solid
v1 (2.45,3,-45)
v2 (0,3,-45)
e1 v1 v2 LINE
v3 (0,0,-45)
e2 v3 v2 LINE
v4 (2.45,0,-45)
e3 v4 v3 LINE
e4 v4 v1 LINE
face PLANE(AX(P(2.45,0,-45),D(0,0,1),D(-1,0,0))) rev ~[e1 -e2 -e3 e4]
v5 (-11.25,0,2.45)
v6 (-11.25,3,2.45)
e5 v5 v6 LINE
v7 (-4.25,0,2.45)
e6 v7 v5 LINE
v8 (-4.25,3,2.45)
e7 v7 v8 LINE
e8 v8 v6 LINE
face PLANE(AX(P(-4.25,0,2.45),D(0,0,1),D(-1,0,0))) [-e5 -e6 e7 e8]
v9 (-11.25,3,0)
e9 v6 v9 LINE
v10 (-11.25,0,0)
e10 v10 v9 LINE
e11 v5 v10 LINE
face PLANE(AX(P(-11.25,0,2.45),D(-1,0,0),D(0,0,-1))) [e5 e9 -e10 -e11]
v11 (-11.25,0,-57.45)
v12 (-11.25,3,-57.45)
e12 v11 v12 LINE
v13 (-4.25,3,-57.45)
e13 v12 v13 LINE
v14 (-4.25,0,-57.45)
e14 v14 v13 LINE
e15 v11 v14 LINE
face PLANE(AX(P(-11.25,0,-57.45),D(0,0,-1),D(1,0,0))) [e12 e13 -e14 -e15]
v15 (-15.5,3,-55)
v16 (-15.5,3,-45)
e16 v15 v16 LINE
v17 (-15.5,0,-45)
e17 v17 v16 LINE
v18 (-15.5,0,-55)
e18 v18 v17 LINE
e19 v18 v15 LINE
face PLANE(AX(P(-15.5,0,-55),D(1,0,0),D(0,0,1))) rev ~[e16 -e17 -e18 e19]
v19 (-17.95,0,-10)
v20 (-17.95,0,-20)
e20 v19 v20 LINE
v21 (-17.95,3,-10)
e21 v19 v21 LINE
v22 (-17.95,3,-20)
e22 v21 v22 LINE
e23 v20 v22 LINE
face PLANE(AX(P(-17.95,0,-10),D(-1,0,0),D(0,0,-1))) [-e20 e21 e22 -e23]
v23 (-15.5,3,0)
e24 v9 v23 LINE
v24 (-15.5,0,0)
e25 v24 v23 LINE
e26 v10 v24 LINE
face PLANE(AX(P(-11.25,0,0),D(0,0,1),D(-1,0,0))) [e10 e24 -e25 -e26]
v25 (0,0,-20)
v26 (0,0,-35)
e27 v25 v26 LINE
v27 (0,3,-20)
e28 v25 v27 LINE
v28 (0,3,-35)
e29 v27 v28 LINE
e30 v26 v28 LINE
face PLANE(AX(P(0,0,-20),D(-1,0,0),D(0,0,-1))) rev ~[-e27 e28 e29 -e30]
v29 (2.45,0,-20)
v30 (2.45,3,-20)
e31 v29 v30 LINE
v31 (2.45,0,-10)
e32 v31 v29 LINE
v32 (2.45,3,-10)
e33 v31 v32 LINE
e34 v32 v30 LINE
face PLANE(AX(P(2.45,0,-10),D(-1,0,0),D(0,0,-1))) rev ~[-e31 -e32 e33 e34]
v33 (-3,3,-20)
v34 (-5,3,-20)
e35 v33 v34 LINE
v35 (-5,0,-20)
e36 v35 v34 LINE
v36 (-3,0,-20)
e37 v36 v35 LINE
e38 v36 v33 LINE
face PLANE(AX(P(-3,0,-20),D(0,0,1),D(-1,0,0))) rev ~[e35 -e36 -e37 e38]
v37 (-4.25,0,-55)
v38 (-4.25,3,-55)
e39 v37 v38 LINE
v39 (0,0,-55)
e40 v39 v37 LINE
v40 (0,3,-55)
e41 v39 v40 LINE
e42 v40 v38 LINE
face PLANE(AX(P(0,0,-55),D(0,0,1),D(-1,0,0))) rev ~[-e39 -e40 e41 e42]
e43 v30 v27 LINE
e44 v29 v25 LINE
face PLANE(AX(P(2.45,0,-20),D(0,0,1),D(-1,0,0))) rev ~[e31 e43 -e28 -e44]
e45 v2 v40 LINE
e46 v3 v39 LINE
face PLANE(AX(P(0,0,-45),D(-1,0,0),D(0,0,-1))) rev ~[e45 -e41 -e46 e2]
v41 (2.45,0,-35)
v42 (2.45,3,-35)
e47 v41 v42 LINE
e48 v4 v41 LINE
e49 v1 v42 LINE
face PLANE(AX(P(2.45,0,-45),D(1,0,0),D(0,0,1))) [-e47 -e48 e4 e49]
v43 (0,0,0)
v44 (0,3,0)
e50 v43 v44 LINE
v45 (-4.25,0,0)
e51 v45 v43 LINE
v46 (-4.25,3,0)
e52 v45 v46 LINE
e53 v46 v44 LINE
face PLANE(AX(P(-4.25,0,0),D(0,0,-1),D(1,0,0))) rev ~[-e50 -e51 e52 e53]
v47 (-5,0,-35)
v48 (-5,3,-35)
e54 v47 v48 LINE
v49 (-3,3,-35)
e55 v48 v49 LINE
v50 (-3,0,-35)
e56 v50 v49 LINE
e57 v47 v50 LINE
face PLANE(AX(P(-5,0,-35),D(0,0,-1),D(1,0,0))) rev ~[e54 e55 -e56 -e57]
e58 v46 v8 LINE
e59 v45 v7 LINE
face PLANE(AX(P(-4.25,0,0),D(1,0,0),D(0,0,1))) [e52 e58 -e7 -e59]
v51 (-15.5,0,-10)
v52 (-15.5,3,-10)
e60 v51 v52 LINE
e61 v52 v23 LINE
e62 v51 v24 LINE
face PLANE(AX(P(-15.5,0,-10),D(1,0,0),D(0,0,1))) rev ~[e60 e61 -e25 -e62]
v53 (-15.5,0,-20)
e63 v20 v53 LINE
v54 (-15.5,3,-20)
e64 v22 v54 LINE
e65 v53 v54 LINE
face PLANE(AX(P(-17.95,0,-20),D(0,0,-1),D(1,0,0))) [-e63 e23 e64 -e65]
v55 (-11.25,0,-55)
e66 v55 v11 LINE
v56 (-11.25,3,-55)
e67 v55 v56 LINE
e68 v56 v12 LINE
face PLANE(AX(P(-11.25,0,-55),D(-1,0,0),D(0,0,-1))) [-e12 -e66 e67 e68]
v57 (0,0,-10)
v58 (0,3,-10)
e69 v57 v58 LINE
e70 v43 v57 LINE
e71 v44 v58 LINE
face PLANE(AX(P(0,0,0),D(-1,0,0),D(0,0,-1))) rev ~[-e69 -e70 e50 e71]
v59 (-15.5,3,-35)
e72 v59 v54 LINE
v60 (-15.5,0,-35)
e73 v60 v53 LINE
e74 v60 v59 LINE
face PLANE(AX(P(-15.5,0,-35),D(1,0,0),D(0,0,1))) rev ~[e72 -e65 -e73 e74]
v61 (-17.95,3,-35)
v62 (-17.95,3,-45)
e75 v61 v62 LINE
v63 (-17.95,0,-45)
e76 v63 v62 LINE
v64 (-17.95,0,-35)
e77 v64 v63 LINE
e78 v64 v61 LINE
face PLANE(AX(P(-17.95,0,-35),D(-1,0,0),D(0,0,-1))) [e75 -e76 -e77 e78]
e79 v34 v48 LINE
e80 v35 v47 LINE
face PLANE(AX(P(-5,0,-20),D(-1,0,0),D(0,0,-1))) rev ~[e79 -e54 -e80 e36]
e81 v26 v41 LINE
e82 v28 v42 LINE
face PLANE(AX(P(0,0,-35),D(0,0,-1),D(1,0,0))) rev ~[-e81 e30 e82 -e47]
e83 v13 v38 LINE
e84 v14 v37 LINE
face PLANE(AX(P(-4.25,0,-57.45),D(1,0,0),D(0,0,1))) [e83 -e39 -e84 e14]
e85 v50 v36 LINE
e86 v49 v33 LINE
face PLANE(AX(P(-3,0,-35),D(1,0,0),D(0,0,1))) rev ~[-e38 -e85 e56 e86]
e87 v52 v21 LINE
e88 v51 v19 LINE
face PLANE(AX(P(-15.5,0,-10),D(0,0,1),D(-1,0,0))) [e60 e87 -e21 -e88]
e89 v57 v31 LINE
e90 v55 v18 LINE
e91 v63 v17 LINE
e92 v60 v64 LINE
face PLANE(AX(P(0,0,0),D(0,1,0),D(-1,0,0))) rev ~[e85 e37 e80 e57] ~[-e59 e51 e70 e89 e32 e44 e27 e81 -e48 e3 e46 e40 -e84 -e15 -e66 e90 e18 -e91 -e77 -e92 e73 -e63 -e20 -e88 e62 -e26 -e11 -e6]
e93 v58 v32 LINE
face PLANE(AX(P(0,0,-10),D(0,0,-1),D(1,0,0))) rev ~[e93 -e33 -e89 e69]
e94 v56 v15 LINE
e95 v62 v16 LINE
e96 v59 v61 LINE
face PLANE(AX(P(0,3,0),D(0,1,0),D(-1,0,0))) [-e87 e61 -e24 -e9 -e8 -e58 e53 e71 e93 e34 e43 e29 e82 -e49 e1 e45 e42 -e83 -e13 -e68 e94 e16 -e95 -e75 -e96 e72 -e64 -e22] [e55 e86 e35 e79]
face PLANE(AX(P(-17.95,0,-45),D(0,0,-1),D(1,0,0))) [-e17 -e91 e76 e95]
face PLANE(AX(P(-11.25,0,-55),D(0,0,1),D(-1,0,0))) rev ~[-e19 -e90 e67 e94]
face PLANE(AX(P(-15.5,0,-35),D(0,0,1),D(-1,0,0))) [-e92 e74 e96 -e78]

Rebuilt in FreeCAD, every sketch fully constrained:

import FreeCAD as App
import Part
import Sketcher


def add_polygon(sketch, points):
    """Adds a closed chain of lines whose ends are joined by coincident constraints."""
    first, n = sketch.GeometryCount, len(points)
    for a, b in zip(points, points[1:] + points[:1]):
        sketch.addGeometry(Part.LineSegment(App.Vector(*a, 0), App.Vector(*b, 0)), False)
    for i in range(n):
        sketch.addConstraint(Sketcher.Constraint("Coincident", first + i, 2, first + (i + 1) % n, 1))

doc = App.newDocument("Part")
params = doc.addObject("Spreadsheet::Sheet", "Params")
for row, (alias, value) in enumerate([
    ("sketch1_width", "7 mm"),
    ("sketch1_width2", "2 mm"),
    ("sketch1_height", "10 mm"),
    ("sketch1_height2", "15 mm"),
    ("sketch1_width3", "2.45 mm"),
    ("pad1_length", "3 mm"),
], start=1):
    params.set(f"A{row}", alias)
    params.set(f"B{row}", "=" + value)
    params.setAlias(f"B{row}", alias)

body = doc.addObject("PartDesign::Body", "Body")

# Sketch on XZ plane
sketch1 = body.newObject("Sketcher::SketchObject", "Sketch")
sketch1.AttachmentSupport = (doc.getObject("XZ_Plane"), [""])
sketch1.MapMode = "FlatFace"
add_polygon(sketch1, [(-17.95, -10), (-15.5, -10), (-15.5, 0), (-11.25, 0), (-11.25, 2.45), (-4.25, 2.45), (-4.25, 0), (0, 0), (0, -10), (2.45, -10), (2.45, -20), (0, -20), (0, -35), (2.45, -35), (2.45, -45), (0, -45), (0, -55), (-4.25, -55), (-4.25, -57.45), (-11.25, -57.45), (-11.25, -55), (-15.5, -55), (-15.5, -45), (-17.95, -45), (-17.95, -35), (-15.5, -35), (-15.5, -20), (-17.95, -20)])  # lines 0-27
add_polygon(sketch1, [(-5, -20), (-5, -35), (-3, -35), (-3, -20)])  # lines 28-31
sketch1.addConstraint([
    Sketcher.Constraint("Horizontal", 0),
    Sketcher.Constraint("Vertical", 1),
    Sketcher.Constraint("Horizontal", 2),
    Sketcher.Constraint("Vertical", 3),
    Sketcher.Constraint("Horizontal", 4),
    Sketcher.Constraint("Vertical", 5),
    Sketcher.Constraint("Horizontal", 6),
    Sketcher.Constraint("Vertical", 7),
    Sketcher.Constraint("Horizontal", 8),
    Sketcher.Constraint("Vertical", 9),
    Sketcher.Constraint("Horizontal", 10),
    Sketcher.Constraint("Vertical", 11),
    Sketcher.Constraint("Horizontal", 12),
    Sketcher.Constraint("Vertical", 13),
    Sketcher.Constraint("Horizontal", 14),
    Sketcher.Constraint("Vertical", 15),
    Sketcher.Constraint("Horizontal", 16),
    Sketcher.Constraint("Vertical", 17),
    Sketcher.Constraint("Horizontal", 18),
    Sketcher.Constraint("Vertical", 19),
    Sketcher.Constraint("Horizontal", 20),
    Sketcher.Constraint("Vertical", 21),
    Sketcher.Constraint("Horizontal", 22),
    Sketcher.Constraint("Vertical", 23),
    Sketcher.Constraint("Horizontal", 24),
    Sketcher.Constraint("Vertical", 25),
    Sketcher.Constraint("Horizontal", 26),
    Sketcher.Constraint("Vertical", 27),
    Sketcher.Constraint("Vertical", 28),
    Sketcher.Constraint("Horizontal", 29),
    Sketcher.Constraint("Vertical", 30),
    Sketcher.Constraint("Horizontal", 31),
    Sketcher.Constraint("Coincident", 6, 2, -1, 1),
    Sketcher.Constraint("PointOnObject", 1, 2, -1),
    Sketcher.Constraint("PointOnObject", 10, 2, -2),
    Sketcher.Constraint("PointOnObject", 14, 2, -2),
    Sketcher.Constraint("Horizontal", 0, 2, 7, 2),
    Sketcher.Constraint("Horizontal", 16, 2, 19, 2),
    Sketcher.Constraint("Horizontal", 14, 2, 21, 2),
    Sketcher.Constraint("Horizontal", 12, 2, 23, 2),
    Sketcher.Constraint("Horizontal", 10, 2, 25, 2),
    Sketcher.Constraint("Horizontal", 24, 2, 28, 2),
    Sketcher.Constraint("Horizontal", 26, 2, 30, 2),
    Sketcher.Constraint("Vertical", 9, 2, 12, 2),
    Sketcher.Constraint("Vertical", 5, 2, 16, 2),
    Sketcher.Constraint("Vertical", 3, 2, 18, 2),
    Sketcher.Constraint("Vertical", 1, 2, 20, 2),
    Sketcher.Constraint("Vertical", 21, 2, 24, 2),
    Sketcher.Constraint("Vertical", 23, 2, 26, 2),
    Sketcher.Constraint("Equal", 2, 6),
    Sketcher.Constraint("Equal", 0, 8),
    Sketcher.Constraint("Equal", 26, 3),
    Sketcher.Constraint("Equal", 7, 9),
    Sketcher.Constraint("Equal", 9, 13),
    Sketcher.Constraint("Equal", 13, 15),
    Sketcher.Constraint("Equal", 5, 17),
    Sketcher.Constraint("DistanceX", 4, 1, 4, 2, 7.0),
    Sketcher.Constraint("DistanceX", 29, 1, 29, 2, 2.0),
    Sketcher.Constraint("DistanceY", 1, 1, 1, 2, 10.0),
    Sketcher.Constraint("DistanceY", 11, 2, 11, 1, 15.0),
    Sketcher.Constraint("DistanceX", 29, 2, -1, 1, 3.0),
    Sketcher.Constraint("DistanceX", 0, 1, 0, 2, 2.45),
    Sketcher.Constraint("DistanceX", 0, 2, -1, 1, 15.5),
])
sketch1.setExpression("Constraints[88]", "Params.sketch1_width")
sketch1.setExpression("Constraints[89]", "Params.sketch1_width2")
sketch1.setExpression("Constraints[90]", "Params.sketch1_height")
sketch1.setExpression("Constraints[91]", "Params.sketch1_height2")
sketch1.setExpression("Constraints[93]", "Params.sketch1_width3")
pad1 = body.newObject("PartDesign::Pad", "Pad")
pad1.Profile = sketch1
pad1.setExpression("Length", "Params.pad1_length")
pad1.Reversed = True

doc.recompute()
